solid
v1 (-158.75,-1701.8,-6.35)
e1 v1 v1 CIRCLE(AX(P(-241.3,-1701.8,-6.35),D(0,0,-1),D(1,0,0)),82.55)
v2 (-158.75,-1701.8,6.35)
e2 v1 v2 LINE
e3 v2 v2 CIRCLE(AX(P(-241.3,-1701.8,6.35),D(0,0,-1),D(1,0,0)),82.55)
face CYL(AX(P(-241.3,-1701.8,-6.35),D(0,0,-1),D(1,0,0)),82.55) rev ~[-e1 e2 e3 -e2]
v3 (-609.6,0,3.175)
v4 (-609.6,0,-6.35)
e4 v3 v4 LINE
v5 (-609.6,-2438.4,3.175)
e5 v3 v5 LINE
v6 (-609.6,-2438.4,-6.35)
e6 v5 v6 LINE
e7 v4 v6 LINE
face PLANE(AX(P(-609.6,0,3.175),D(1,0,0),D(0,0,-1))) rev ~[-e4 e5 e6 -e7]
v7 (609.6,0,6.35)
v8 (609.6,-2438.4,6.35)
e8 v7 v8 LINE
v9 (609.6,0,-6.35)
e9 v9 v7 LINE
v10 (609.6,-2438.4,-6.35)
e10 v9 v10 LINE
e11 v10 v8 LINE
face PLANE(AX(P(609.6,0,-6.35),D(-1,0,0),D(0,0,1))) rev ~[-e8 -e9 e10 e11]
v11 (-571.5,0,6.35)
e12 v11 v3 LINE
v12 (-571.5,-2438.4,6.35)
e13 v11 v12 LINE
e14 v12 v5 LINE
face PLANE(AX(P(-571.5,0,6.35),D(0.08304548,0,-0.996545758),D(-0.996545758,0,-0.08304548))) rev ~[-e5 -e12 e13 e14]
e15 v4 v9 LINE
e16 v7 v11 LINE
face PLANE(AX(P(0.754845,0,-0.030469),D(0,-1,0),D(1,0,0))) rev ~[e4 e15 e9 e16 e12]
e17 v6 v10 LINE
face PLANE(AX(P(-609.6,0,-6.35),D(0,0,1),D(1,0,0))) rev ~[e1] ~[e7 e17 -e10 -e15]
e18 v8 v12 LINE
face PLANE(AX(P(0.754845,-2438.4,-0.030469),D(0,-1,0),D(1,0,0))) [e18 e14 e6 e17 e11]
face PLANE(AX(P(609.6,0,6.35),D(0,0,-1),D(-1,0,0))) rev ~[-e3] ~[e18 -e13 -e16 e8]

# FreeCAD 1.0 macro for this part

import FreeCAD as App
import Part
import Sketcher
from FreeCAD import Vector
Q = App.Units.Quantity


def add_polygon(sketch, points):
    """Adds a closed chain of lines whose ends are joined by coincident constraints."""
    first, n = sketch.GeometryCount, len(points)
    for a, b in zip(points, points[1:] + points[:1]):
        sketch.addGeometry(Part.LineSegment(App.Vector(*a, 0), App.Vector(*b, 0)), False)
    for i in range(n):
        sketch.addConstraint(Sketcher.Constraint("Coincident", first + i, 2, first + (i + 1) % n, 1))

doc = App.newDocument("Part")
body = doc.addObject("PartDesign::Body", "Body")

# Sketch on XZ plane
sketch1 = doc.addObject("Sketcher::SketchObject", "Sketch")
body.addObject(sketch1)
sketch1.AttachmentSupport = (doc.XZ_Plane, [""])
sketch1.MapMode = "FlatFace"
add_polygon(sketch1, [(609.6, 6.35), (-571.5, 6.35), (-609.6, 3.175), (-609.6, -6.35), (609.6, -6.35)])  # lines 0-4
sketch1.addConstraint([
    Sketcher.Constraint("Horizontal", 0),
    Sketcher.Constraint("Vertical", 2),
    Sketcher.Constraint("Horizontal", 3),
    Sketcher.Constraint("Vertical", 4),
    Sketcher.Constraint("Symmetric", 2, 2, 4, 2, -1, 1),
    Sketcher.Constraint("DistanceX", 3, 1, 3, 2, Q("48 in")),
    Sketcher.Constraint("DistanceX", 0, 2, 0, 1, Q("46.5 in")),
    Sketcher.Constraint("DistanceY", 4, 1, 4, 2, Q("0.5 in")),
    Sketcher.Constraint("DistanceY", 2, 2, 2, 1, Q("0.375 in")),
])
pad1 = doc.addObject("PartDesign::Pad", "Pad")
body.addObject(pad1)
pad1.Profile = sketch1
pad1.Length = Q("96 in")

# Sketch on XY plane
sketch2 = doc.addObject("Sketcher::SketchObject", "Sketch001")
body.addObject(sketch2)
sketch2.AttachmentSupport = (doc.XY_Plane, [""])
sketch2.MapMode = "FlatFace"
sketch2.AttachmentOffset = App.Placement(Vector(0, 0, -0.25 * 25.4), App.Rotation())
sketch2.addGeometry(Part.Circle(Vector(-241.3, -1701.8, 0), Vector(0, 0, 1), 82.55), False)
sketch2.addConstraint([
    Sketcher.Constraint("Diameter", 0, Q("6.5 in")),
    Sketcher.Constraint("DistanceY", 0, 3, -1, 1, Q("67 in")),
    Sketcher.Constraint("DistanceX", 0, 3, -1, 1, Q("9.5 in")),
])
pocket1 = doc.addObject("PartDesign::Pocket", "Pocket")
body.addObject(pocket1)
pocket1.Profile = sketch2
pocket1.Length = Q("1 in")
pocket1.Reversed = True

doc.recompute()
